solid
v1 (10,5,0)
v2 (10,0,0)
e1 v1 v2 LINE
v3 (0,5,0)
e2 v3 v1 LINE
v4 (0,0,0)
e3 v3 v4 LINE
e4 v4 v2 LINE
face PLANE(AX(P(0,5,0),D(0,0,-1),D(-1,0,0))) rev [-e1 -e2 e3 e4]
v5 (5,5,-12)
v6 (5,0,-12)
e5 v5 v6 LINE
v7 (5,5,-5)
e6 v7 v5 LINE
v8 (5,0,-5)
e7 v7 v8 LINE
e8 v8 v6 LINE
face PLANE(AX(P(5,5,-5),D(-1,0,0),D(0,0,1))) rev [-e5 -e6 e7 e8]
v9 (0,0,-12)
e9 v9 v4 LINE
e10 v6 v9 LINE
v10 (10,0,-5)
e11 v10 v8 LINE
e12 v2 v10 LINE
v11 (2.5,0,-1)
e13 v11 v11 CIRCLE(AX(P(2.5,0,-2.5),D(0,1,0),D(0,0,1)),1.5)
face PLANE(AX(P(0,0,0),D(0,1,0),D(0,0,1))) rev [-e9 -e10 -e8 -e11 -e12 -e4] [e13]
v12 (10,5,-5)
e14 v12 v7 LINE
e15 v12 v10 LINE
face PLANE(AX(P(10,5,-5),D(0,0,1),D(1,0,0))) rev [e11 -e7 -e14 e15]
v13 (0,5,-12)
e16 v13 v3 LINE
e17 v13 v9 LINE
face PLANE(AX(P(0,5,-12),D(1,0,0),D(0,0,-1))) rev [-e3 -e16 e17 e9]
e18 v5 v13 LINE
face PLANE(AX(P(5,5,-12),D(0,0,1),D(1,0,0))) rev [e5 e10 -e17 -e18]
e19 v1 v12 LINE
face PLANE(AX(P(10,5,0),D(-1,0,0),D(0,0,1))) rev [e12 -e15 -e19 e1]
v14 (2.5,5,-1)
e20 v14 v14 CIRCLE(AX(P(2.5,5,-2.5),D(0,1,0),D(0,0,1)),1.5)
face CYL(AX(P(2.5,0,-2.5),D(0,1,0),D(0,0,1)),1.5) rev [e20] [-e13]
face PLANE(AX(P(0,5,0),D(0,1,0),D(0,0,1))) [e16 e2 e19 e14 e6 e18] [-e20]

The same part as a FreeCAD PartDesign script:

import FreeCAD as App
import Part
import Sketcher
from FreeCAD import Vector
Q = App.Units.Quantity


def add_polygon(sketch, points):
    """Adds a closed chain of lines whose ends are joined by coincident constraints."""
    first, n = sketch.GeometryCount, len(points)
    for a, b in zip(points, points[1:] + points[:1]):
        sketch.addGeometry(Part.LineSegment(App.Vector(*a, 0), App.Vector(*b, 0)), False)
    for i in range(n):
        sketch.addConstraint(Sketcher.Constraint("Coincident", first + i, 2, first + (i + 1) % n, 1))

doc = App.newDocument("Part")
body = doc.addObject("PartDesign::Body", "Body")

# Sketch on XZ plane
sketch1 = body.newObject("Sketcher::SketchObject", "Sketch")
sketch1.AttachmentSupport = (doc.getObject("XZ_Plane"), [""])
sketch1.MapMode = "FlatFace"
add_polygon(sketch1, [(0, 0), (10, 0), (10, -5), (5, -5), (5, -12), (0, -12)])  # lines 0-5
sketch1.addConstraint(Sketcher.Constraint("Horizontal", 0))
sketch1.addConstraint(Sketcher.Constraint("Vertical", 1))
sketch1.addConstraint(Sketcher.Constraint("Horizontal", 2))
sketch1.addConstraint(Sketcher.Constraint("Vertical", 3))
sketch1.addConstraint(Sketcher.Constraint("Horizontal", 4))
sketch1.addConstraint(Sketcher.Constraint("Vertical", 5))
sketch1.addConstraint(Sketcher.Constraint("Coincident", 5, 2, -1, 1))
sketch1.addConstraint(Sketcher.Constraint("Equal", 2, 4))
sketch1.addConstraint(Sketcher.Constraint("Equal", 4, 1))
sketch1.addConstraint(Sketcher.Constraint("DistanceX", 0, 1, 0, 2, Q("10 mm")))
sketch1.addConstraint(Sketcher.Constraint("DistanceY", 3, 2, 3, 1, Q("7 mm")))
pad1 = body.newObject("PartDesign::Pad", "Pad")
pad1.Profile = sketch1
pad1.Length = 5
pad1.Reversed = True

# Sketch on XZ plane
sketch2 = body.newObject("Sketcher::SketchObject", "Sketch001")
sketch2.AttachmentSupport = (doc.getObject("XZ_Plane"), [""])
sketch2.MapMode = "FlatFace"
sketch2.AttachmentOffset = App.Placement(Vector(0, 0, -5), App.Rotation())
sketch2.addGeometry(Part.Circle(Vector(2.5, -2.5, 0), Vector(0, 0, 1), 1.5), False)
sketch2.addConstraint(Sketcher.Constraint("Diameter", 0, Q("3 mm")))
sketch2.addConstraint(Sketcher.Constraint("DistanceX", -1, 1, 0, 3, Q("2.5 mm")))
sketch2.addConstraint(Sketcher.Constraint("DistanceY", 0, 3, -1, 1, Q("2.5 mm")))
pocket1 = body.newObject("PartDesign::Pocket", "Pocket")
pocket1.Profile = sketch2
pocket1.Type = "ThroughAll"
pocket1.Reversed = True

doc.recompute()
